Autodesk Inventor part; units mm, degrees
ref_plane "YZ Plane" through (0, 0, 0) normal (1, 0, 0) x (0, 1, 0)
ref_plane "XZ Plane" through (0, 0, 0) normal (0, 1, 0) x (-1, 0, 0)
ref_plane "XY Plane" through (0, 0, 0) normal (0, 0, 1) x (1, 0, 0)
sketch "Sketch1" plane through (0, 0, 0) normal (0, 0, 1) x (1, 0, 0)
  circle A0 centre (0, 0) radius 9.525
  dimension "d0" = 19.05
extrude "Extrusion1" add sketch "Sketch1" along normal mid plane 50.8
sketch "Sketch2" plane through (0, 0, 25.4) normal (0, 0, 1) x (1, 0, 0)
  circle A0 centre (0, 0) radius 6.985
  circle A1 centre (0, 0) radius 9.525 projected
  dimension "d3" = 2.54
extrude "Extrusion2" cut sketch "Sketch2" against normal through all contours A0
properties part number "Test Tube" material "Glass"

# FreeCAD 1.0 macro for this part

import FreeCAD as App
import Part
import Sketcher
Q = App.Units.Quantity

doc = App.newDocument("Part")
body = doc.addObject("PartDesign::Body", "Body")

sketch1 = body.newObject("Sketcher::SketchObject", "Sketch")
sketch1.AttachmentSupport = (doc.getObject("XY_Plane"), [""])
sketch1.MapMode = "FlatFace"
sketch1.addGeometry(Part.Circle(App.Vector(0, 0, 0), App.Vector(0, 0, 1), 9.525), False)
sketch1.addConstraint(Sketcher.Constraint("Coincident", 0, 3, -1, 1))
sketch1.addConstraint(Sketcher.Constraint("Diameter", 0, Q("0.75 in")))
pad1 = body.newObject("PartDesign::Pad", "Pad")
pad1.Profile = sketch1
pad1.Length = Q("2 in")
pad1.Midplane = True

sketch2 = body.newObject("Sketcher::SketchObject", "Sketch001")
sketch2.AttachmentSupport = (doc.getObject("XY_Plane"), [""])
sketch2.MapMode = "FlatFace"
sketch2.AttachmentOffset = App.Placement(App.Vector(0, 0, 1 * 25.4), App.Rotation())
sketch2.addGeometry(Part.Circle(App.Vector(0, 0, 0), App.Vector(0, 0, 1), 6.985), False)
sketch2.addConstraint(Sketcher.Constraint("Coincident", 0, 3, -1, 1))
sketch2.addConstraint(Sketcher.Constraint("Diameter", 0, Q("0.55 in")))
pocket1 = body.newObject("PartDesign::Pocket", "Pocket")
pocket1.Profile = sketch2
pocket1.Type = "ThroughAll"

doc.recompute()
